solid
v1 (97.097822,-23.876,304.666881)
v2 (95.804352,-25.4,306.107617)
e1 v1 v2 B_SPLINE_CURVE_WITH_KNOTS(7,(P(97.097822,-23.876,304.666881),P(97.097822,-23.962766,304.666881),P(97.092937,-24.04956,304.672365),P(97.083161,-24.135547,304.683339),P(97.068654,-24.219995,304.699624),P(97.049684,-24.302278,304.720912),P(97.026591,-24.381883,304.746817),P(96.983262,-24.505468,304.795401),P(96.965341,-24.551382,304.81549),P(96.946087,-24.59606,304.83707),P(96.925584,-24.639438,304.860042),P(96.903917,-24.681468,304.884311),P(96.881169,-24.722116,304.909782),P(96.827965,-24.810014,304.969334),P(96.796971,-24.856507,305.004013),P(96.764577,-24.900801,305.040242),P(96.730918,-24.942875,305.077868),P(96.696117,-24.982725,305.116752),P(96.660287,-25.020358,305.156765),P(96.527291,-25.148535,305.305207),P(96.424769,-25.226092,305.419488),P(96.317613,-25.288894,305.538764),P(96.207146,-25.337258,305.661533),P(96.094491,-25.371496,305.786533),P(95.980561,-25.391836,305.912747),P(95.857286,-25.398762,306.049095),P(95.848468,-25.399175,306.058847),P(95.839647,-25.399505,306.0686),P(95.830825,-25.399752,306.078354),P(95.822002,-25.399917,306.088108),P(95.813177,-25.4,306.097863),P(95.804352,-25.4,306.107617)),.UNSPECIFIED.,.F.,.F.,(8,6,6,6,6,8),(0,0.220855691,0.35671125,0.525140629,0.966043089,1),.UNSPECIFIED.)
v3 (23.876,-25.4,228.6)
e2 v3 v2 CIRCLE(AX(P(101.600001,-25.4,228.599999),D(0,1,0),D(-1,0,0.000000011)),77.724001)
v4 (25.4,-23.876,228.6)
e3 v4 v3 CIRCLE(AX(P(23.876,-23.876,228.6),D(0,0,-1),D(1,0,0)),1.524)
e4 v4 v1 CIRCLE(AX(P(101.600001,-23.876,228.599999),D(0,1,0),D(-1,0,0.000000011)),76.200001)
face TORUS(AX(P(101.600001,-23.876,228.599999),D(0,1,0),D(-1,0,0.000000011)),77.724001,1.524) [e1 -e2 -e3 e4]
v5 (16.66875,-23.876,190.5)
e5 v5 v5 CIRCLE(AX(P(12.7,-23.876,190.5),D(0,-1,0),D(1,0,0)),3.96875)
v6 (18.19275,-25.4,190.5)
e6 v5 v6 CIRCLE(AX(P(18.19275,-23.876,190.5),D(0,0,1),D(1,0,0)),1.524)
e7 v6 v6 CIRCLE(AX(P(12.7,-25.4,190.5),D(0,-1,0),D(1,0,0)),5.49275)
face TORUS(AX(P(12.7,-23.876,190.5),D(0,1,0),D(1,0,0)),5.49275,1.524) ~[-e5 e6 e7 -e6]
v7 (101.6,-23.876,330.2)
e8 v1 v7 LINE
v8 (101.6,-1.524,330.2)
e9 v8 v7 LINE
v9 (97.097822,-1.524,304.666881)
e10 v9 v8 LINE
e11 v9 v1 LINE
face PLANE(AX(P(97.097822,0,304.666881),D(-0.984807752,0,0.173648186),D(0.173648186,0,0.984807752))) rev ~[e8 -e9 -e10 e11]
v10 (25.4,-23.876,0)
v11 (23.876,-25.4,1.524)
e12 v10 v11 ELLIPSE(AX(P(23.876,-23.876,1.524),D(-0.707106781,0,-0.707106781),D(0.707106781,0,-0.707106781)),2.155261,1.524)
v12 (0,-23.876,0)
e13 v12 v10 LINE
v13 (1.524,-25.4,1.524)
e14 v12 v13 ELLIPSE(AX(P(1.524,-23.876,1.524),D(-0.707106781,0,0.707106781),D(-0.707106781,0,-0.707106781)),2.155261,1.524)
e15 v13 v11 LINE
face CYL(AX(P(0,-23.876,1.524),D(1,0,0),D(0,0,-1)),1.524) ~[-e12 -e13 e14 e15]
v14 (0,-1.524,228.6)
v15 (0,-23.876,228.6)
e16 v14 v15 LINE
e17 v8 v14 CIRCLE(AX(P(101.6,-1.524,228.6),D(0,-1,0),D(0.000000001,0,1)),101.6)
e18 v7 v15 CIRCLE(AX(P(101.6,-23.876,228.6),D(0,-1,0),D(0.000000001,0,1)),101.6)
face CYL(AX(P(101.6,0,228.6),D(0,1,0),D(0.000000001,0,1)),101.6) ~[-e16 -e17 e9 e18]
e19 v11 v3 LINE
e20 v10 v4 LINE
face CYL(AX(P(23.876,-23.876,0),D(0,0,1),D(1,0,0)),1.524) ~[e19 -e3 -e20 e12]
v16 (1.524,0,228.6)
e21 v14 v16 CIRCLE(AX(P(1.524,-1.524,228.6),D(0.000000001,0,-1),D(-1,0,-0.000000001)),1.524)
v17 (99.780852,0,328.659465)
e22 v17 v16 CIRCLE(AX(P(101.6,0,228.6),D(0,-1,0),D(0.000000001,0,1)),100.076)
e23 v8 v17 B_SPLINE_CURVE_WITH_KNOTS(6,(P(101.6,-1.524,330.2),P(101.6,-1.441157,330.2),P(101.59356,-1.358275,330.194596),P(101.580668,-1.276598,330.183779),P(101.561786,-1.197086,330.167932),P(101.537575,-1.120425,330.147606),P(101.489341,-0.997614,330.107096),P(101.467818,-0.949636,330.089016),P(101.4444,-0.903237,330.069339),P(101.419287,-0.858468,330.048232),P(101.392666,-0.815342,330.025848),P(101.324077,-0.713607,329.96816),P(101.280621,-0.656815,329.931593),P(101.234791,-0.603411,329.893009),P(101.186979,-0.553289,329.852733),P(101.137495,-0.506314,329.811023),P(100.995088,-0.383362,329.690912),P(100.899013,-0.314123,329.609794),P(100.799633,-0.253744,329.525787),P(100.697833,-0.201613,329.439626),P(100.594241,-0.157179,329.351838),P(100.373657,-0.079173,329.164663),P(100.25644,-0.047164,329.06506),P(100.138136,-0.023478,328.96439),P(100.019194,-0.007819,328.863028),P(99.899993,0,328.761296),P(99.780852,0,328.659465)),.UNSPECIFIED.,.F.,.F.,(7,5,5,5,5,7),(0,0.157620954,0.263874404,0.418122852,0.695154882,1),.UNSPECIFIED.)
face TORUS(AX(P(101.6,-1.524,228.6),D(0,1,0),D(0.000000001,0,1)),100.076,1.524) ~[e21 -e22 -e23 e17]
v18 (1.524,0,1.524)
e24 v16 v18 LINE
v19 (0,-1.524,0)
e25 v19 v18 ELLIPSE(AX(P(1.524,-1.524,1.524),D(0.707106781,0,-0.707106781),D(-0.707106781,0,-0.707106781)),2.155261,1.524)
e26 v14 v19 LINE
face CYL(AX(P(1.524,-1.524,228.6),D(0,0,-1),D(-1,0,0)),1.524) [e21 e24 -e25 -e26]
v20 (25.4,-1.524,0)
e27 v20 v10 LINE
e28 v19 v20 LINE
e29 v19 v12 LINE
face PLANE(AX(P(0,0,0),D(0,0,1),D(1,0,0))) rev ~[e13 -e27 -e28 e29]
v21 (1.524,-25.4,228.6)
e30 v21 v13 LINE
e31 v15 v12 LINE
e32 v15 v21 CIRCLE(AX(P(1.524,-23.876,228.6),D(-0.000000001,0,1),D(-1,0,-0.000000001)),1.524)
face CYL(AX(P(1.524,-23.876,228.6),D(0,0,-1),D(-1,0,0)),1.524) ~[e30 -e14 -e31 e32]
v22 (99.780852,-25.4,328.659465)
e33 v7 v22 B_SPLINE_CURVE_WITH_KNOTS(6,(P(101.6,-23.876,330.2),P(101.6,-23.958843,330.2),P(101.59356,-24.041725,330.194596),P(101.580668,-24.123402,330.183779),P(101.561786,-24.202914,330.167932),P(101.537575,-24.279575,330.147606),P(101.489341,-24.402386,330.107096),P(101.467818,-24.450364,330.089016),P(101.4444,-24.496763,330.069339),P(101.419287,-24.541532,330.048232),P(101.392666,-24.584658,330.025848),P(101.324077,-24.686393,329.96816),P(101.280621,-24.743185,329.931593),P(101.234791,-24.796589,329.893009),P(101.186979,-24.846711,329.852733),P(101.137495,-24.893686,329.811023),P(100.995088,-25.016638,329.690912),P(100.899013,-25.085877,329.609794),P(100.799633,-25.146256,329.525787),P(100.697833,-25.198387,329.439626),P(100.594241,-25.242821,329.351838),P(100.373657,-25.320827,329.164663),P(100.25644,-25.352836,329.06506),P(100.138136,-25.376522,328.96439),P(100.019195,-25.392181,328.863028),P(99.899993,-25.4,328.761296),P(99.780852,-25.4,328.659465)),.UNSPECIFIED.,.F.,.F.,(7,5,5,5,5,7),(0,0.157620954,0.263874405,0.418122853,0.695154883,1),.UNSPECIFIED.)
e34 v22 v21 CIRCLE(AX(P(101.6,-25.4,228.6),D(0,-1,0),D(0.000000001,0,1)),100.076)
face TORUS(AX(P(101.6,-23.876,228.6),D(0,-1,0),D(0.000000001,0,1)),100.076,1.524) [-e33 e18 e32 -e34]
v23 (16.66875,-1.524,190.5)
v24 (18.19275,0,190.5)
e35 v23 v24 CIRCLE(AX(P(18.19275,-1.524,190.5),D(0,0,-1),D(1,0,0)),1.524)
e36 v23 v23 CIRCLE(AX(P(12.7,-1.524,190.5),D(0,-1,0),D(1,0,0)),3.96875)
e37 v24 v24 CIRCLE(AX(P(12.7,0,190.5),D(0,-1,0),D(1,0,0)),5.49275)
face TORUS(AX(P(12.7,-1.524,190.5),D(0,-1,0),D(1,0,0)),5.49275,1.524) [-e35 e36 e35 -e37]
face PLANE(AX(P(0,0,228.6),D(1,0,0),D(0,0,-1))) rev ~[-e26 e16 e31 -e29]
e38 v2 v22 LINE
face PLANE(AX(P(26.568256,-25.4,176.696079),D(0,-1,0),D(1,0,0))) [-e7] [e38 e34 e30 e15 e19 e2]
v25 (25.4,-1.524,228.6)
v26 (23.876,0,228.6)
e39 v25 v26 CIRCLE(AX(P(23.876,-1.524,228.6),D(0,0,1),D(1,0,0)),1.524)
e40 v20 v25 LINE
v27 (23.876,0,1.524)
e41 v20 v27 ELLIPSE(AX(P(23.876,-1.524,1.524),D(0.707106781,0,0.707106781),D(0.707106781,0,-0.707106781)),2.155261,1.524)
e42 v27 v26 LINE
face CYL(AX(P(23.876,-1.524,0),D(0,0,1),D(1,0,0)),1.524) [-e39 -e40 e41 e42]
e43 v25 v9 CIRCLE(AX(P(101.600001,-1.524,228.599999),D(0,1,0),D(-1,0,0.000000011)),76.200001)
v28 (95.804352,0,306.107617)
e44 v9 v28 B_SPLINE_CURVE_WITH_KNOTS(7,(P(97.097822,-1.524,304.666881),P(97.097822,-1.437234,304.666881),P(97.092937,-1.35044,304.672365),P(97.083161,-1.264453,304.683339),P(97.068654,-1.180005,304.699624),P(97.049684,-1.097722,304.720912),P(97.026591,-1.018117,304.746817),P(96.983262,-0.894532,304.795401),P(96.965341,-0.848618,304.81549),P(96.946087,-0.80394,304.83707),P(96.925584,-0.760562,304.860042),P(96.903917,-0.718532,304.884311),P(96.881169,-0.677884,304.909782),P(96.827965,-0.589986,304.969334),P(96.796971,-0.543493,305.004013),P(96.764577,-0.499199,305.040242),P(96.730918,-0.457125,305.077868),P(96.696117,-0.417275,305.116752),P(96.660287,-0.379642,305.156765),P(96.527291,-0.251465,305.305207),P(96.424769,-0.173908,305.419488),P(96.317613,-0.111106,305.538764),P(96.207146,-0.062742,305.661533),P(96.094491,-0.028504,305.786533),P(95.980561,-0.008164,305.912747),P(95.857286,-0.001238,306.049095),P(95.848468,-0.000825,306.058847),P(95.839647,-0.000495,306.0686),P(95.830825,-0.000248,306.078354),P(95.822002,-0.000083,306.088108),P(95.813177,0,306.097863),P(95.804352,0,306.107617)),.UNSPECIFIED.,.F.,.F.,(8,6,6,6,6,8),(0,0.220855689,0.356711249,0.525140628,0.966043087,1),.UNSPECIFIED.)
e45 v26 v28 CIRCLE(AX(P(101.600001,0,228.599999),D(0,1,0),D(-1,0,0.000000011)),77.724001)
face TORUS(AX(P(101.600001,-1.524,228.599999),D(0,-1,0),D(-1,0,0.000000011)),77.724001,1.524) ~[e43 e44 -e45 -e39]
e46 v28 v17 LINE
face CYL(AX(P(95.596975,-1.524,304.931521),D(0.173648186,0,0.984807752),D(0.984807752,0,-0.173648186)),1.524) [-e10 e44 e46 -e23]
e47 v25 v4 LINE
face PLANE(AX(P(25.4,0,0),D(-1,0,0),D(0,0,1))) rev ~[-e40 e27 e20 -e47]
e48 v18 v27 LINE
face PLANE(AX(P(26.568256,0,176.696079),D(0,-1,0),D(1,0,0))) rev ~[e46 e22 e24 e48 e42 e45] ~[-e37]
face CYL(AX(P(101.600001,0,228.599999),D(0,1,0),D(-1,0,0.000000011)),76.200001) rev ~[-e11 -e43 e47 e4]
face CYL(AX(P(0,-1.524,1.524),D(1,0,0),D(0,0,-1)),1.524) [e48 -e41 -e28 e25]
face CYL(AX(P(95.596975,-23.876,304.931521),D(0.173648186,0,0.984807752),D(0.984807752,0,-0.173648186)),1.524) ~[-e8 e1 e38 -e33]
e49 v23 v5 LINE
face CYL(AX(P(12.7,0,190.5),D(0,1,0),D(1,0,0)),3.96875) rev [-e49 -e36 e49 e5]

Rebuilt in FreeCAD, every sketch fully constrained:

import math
import FreeCAD as App
import Part
import Sketcher
Q = App.Units.Quantity


def edges_at(feature, points):
    """Names of the edges that pass closest to the given points."""
    edges = feature.Shape.Edges
    near = lambda p: min(range(len(edges)), key=lambda i: edges[i].distToShape(Part.Vertex(*p))[0])
    return sorted({f"Edge{near(p) + 1}" for p in points})

doc = App.newDocument("Part")
params = doc.addObject("Spreadsheet::Sheet", "Params")
for row, (alias, value) in enumerate([
    ("sketch1_radius", "3 in"),
    ("sketch1_radius2", "4 in"),
    ("sketch1_height", "9 in"),
    ("sketch1_diameter", "0.3125 in"),
    ("pad1_length", "1 in"),
    ("fillet_radius", "0.06 in"),
], start=1):
    params.set(f"A{row}", alias)
    params.set(f"B{row}", "=" + value)
    params.setAlias(f"B{row}", alias)

body = doc.addObject("PartDesign::Body", "Body")

# Sketch on XZ plane
sketch1 = body.newObject("Sketcher::SketchObject", "Sketch")
sketch1.AttachmentSupport = (doc.getObject("XZ_Plane"), [""])
sketch1.MapMode = "FlatFace"
sketch1.addGeometry([
    Part.LineSegment(App.Vector(0, 228.6, 0), App.Vector(0, 0, 0)),  # 0
    Part.LineSegment(App.Vector(0, 0, 0), App.Vector(25.4, 0, 0)),  # 1
    Part.LineSegment(App.Vector(25.4, 0, 0), App.Vector(25.4, 228.6, 0)),  # 2
    Part.ArcOfCircle(Part.Circle(App.Vector(101.600001, 228.599999, 0), App.Vector(0, 0, 1), 76.200001), math.radians(93.38722), math.radians(179.999999)),  # 3
    Part.LineSegment(App.Vector(97.097822, 304.666881, 0), App.Vector(101.6, 330.2, 0)),  # 4
    Part.ArcOfCircle(Part.Circle(App.Vector(101.6, 228.6, 0), App.Vector(0, 0, 1), 101.6), math.radians(90), math.radians(180)),  # 5
    Part.Circle(App.Vector(12.7, 190.5, 0), App.Vector(0, 0, 1), 3.96875),  # 6
], False)
sketch1.addConstraint([
    Sketcher.Constraint("Coincident", 0, 2, 1, 1),
    Sketcher.Constraint("Coincident", 1, 2, 2, 1),
    Sketcher.Constraint("Tangent", 2, 2, 3, 2),
    Sketcher.Constraint("Coincident", 3, 1, 4, 1),
    Sketcher.Constraint("Coincident", 4, 2, 5, 1),
    Sketcher.Constraint("Tangent", 5, 2, 0, 1),
    Sketcher.Constraint("Vertical", 0),
    Sketcher.Constraint("Horizontal", 1),
    Sketcher.Constraint("Vertical", 2),
    Sketcher.Constraint("Coincident", 0, 2, -1, 1),
    Sketcher.Constraint("Coincident", 5, 3, 3, 3),
    Sketcher.Constraint("Vertical", 5, 3, 4, 2),
    Sketcher.Constraint("Radius", 3, Q("3 in")),
    Sketcher.Constraint("Radius", 5, Q("4 in")),
    Sketcher.Constraint("DistanceY", 0, 2, 0, 1, Q("9 in")),
    Sketcher.Constraint("Diameter", 6, Q("0.3125 in")),
    Sketcher.Constraint("Angle", 4, Q("80 deg")),
    Sketcher.Constraint("DistanceX", -1, 1, 6, 3, Q("0.5 in")),
    Sketcher.Constraint("DistanceY", -1, 1, 6, 3, Q("7.5 in")),
])
sketch1.setExpression("Constraints[12]", "Params.sketch1_radius")
sketch1.setExpression("Constraints[13]", "Params.sketch1_radius2")
sketch1.setExpression("Constraints[14]", "Params.sketch1_height")
sketch1.setExpression("Constraints[15]", "Params.sketch1_diameter")
pad1 = body.newObject("PartDesign::Pad", "Pad")
pad1.Profile = sketch1
pad1.setExpression("Length", "Params.pad1_length")
doc.recompute()

fillet = body.newObject("PartDesign::Fillet", "Fillet")
fillet.Base = (pad1, edges_at(pad1, [
    (0, -25.4, 114.3),
    (12.7, -25.4, 0),
    (25.4, -25.4, 114.3),
    (46.15, -25.4, 280.866),
    (99.349, -25.4, 317.433),
    (29.758, -25.4, 300.442),
    (8.731, -25.4, 190.5),
    (0, 0, 114.3),
    (12.7, 0, 0),
    (25.4, 0, 114.3),
    (46.15, 0, 280.866),
    (99.349, 0, 317.433),
    (29.758, 0, 300.442),
    (8.731, 0, 190.5),
]))
fillet.setExpression("Radius", "Params.fillet_radius")

doc.recompute()
